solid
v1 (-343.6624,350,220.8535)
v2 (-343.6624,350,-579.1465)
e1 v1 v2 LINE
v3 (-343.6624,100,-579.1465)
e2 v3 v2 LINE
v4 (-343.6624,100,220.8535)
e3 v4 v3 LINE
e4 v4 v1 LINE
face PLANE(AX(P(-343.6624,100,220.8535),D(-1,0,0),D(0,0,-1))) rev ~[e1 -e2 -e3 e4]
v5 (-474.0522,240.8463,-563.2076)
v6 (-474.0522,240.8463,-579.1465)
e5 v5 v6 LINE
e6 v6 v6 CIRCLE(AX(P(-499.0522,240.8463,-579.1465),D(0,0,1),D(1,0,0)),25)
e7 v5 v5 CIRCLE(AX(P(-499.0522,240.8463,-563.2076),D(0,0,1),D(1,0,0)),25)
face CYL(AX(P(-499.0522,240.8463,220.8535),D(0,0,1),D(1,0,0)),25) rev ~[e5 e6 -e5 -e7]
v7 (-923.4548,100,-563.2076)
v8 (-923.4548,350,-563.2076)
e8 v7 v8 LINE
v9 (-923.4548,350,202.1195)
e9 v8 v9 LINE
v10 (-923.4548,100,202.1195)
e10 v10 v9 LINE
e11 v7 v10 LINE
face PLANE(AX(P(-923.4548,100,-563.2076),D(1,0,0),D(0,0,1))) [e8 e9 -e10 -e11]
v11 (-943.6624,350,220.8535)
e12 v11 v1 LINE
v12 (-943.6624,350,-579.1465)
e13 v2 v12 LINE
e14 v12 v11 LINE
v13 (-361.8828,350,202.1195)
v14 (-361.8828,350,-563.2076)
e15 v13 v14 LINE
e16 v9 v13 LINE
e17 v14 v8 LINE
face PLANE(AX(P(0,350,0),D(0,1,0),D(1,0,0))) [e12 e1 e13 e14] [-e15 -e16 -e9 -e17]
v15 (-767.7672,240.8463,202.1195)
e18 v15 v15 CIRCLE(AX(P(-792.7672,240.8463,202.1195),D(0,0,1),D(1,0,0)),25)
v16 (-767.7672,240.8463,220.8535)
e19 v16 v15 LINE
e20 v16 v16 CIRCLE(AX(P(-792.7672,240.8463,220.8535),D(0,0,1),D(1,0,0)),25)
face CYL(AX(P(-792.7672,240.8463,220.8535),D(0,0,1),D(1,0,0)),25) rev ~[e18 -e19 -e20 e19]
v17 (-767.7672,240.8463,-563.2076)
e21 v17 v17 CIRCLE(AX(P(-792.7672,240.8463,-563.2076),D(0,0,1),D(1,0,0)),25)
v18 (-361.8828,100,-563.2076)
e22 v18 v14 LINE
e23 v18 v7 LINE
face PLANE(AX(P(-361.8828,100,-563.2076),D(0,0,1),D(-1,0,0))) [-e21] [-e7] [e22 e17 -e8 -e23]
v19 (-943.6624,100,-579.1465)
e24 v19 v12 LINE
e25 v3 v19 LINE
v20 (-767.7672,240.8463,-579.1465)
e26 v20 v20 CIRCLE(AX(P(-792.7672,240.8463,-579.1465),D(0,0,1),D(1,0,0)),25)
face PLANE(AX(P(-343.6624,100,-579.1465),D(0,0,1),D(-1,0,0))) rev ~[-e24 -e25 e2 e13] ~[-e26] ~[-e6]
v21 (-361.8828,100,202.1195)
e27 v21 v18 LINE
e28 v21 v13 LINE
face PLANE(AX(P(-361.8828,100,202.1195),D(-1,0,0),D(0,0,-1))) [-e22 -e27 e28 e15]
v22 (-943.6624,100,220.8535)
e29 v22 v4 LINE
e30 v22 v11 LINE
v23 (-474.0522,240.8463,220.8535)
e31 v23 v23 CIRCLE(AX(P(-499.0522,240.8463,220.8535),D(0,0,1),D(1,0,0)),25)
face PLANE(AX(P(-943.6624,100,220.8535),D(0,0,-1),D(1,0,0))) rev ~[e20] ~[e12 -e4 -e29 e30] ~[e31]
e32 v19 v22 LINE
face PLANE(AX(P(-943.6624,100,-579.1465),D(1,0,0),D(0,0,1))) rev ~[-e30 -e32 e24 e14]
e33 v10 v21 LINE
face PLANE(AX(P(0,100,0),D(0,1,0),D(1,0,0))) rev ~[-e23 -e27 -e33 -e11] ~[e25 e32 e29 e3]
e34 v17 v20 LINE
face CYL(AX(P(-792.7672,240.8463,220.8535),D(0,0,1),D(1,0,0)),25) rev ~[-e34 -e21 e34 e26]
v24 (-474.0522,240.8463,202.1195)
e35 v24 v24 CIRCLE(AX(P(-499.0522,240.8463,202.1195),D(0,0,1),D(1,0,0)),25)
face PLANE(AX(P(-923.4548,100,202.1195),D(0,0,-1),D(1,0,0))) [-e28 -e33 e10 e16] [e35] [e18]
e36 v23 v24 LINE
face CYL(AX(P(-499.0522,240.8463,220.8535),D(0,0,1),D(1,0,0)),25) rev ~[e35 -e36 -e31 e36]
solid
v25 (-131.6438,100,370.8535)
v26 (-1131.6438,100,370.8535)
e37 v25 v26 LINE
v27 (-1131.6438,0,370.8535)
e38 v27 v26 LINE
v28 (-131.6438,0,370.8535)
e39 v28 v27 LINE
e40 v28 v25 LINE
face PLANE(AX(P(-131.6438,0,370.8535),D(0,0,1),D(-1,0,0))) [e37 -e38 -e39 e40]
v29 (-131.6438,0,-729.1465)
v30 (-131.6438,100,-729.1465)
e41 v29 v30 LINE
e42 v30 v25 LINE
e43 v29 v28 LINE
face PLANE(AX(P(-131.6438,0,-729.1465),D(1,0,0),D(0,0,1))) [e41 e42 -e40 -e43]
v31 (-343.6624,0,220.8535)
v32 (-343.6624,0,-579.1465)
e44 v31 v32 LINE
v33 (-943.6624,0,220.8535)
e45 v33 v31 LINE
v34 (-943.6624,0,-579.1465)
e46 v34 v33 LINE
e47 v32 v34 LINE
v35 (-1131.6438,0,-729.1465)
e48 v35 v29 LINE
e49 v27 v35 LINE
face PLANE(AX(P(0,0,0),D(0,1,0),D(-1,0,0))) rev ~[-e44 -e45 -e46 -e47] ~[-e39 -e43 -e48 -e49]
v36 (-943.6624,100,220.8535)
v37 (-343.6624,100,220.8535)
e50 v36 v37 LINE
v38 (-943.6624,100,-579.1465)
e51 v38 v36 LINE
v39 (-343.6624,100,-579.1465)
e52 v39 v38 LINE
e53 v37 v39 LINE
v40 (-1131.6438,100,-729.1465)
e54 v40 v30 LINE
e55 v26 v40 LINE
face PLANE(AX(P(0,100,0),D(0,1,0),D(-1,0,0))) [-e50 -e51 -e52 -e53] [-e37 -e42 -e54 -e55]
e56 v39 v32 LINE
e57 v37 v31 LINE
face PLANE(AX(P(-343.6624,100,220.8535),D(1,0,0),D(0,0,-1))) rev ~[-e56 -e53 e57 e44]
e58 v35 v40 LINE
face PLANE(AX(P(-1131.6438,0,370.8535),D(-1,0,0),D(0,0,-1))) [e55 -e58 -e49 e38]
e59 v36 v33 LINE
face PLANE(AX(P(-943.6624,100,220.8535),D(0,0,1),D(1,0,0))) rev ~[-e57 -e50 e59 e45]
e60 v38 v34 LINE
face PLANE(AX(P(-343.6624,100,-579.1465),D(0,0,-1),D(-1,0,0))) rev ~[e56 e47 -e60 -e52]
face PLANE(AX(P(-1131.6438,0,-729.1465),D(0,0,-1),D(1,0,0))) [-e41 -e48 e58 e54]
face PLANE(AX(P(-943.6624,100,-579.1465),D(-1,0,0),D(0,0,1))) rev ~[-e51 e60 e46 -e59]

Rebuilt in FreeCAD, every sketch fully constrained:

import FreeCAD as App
import Part
import Sketcher
from FreeCAD import Vector

doc = App.newDocument("Part")
body = doc.addObject("PartDesign::Body", "Body")
body.AllowCompound = True

sketch1 = body.newObject("Sketcher::SketchObject", "Sketch")
sketch1.AttachmentSupport = (doc.getObject("XZ_Plane"), [""])
sketch1.MapMode = "FlatFace"
sketch1.addGeometry(Part.LineSegment(Vector(-1132, 371, 0), Vector(-132, 371, 0)), False)
sketch1.addGeometry(Part.LineSegment(Vector(-132, 371, 0), Vector(-132, -729, 0)), False)
sketch1.addGeometry(Part.LineSegment(Vector(-132, -729, 0), Vector(-1132, -729, 0)), False)
sketch1.addGeometry(Part.LineSegment(Vector(-1132, -729, 0), Vector(-1132, 371, 0)), False)
sketch1.addConstraint(Sketcher.Constraint("Coincident", 0, 2, 1, 1))
sketch1.addConstraint(Sketcher.Constraint("Coincident", 1, 2, 2, 1))
sketch1.addConstraint(Sketcher.Constraint("Coincident", 2, 2, 3, 1))
sketch1.addConstraint(Sketcher.Constraint("Coincident", 3, 2, 0, 1))
sketch1.addConstraint(Sketcher.Constraint("Horizontal", 0))
sketch1.addConstraint(Sketcher.Constraint("Vertical", 1))
sketch1.addConstraint(Sketcher.Constraint("Horizontal", 2))
sketch1.addConstraint(Sketcher.Constraint("Vertical", 3))
sketch1.addConstraint(Sketcher.Constraint("DistanceX", 0, 1, 0, 2, 1000.0))
sketch1.addConstraint(Sketcher.Constraint("DistanceY", 1, 2, 1, 1, 1100.0))
sketch1.addConstraint(Sketcher.Constraint("DistanceX", 0, 2, -1, 1, 131.6438))
sketch1.addConstraint(Sketcher.Constraint("DistanceY", -1, 1, 0, 2, 370.8535))
pad1 = body.newObject("PartDesign::Pad", "Pad")
pad1.Profile = sketch1
pad1.Length = 100
pad1.Reversed = True

sketch2 = body.newObject("Sketcher::SketchObject", "Sketch001")
sketch2.AttachmentSupport = (doc.getObject("XZ_Plane"), [""])
sketch2.MapMode = "FlatFace"
sketch2.AttachmentOffset = App.Placement(Vector(0, 0, -100), App.Rotation())
sketch2.addGeometry(Part.LineSegment(Vector(-944, -579, 0), Vector(-944, 221, 0)), False)
sketch2.addGeometry(Part.LineSegment(Vector(-944, 221, 0), Vector(-344, 221, 0)), False)
sketch2.addGeometry(Part.LineSegment(Vector(-344, 221, 0), Vector(-344, -579, 0)), False)
sketch2.addGeometry(Part.LineSegment(Vector(-344, -579, 0), Vector(-944, -579, 0)), False)
sketch2.addConstraint(Sketcher.Constraint("Coincident", 0, 2, 1, 1))
sketch2.addConstraint(Sketcher.Constraint("Coincident", 1, 2, 2, 1))
sketch2.addConstraint(Sketcher.Constraint("Coincident", 2, 2, 3, 1))
sketch2.addConstraint(Sketcher.Constraint("Coincident", 3, 2, 0, 1))
sketch2.addConstraint(Sketcher.Constraint("Vertical", 0))
sketch2.addConstraint(Sketcher.Constraint("Horizontal", 1))
sketch2.addConstraint(Sketcher.Constraint("Vertical", 2))
sketch2.addConstraint(Sketcher.Constraint("Horizontal", 3))
sketch2.addConstraint(Sketcher.Constraint("DistanceX", 1, 1, 1, 2, 600.0))
sketch2.addConstraint(Sketcher.Constraint("DistanceY", 0, 1, 0, 2, 800.0))
sketch2.addConstraint(Sketcher.Constraint("DistanceX", 0, 2, -1, 1, 943.6624))
sketch2.addConstraint(Sketcher.Constraint("DistanceY", -1, 1, 0, 2, 220.8535))
pocket1 = body.newObject("PartDesign::Pocket", "Pocket")
pocket1.Profile = sketch2
pocket1.Length = 100
pocket1.Reversed = True

sketch3 = body.newObject("Sketcher::SketchObject", "Sketch002")
sketch3.AttachmentSupport = (doc.getObject("XZ_Plane"), [""])
sketch3.MapMode = "FlatFace"
sketch3.AttachmentOffset = App.Placement(Vector(0, 0, -100), App.Rotation())
sketch3.addGeometry(Part.LineSegment(Vector(-944, -579, 0), Vector(-944, 221, 0)), False)
sketch3.addGeometry(Part.LineSegment(Vector(-944, 221, 0), Vector(-344, 221, 0)), False)
sketch3.addGeometry(Part.LineSegment(Vector(-344, 221, 0), Vector(-344, -579, 0)), False)
sketch3.addGeometry(Part.LineSegment(Vector(-344, -579, 0), Vector(-944, -579, 0)), False)
sketch3.addGeometry(Part.LineSegment(Vector(-362, 202, 0), Vector(-923, 202, 0)), False)
sketch3.addGeometry(Part.LineSegment(Vector(-923, 202, 0), Vector(-923, -563, 0)), False)
sketch3.addGeometry(Part.LineSegment(Vector(-923, -563, 0), Vector(-362, -563, 0)), False)
sketch3.addGeometry(Part.LineSegment(Vector(-362, -563, 0), Vector(-362, 202, 0)), False)
sketch3.addConstraint(Sketcher.Constraint("Coincident", 0, 2, 1, 1))
sketch3.addConstraint(Sketcher.Constraint("Coincident", 1, 2, 2, 1))
sketch3.addConstraint(Sketcher.Constraint("Coincident", 2, 2, 3, 1))
sketch3.addConstraint(Sketcher.Constraint("Coincident", 3, 2, 0, 1))
sketch3.addConstraint(Sketcher.Constraint("Coincident", 4, 2, 5, 1))
sketch3.addConstraint(Sketcher.Constraint("Coincident", 5, 2, 6, 1))
sketch3.addConstraint(Sketcher.Constraint("Coincident", 6, 2, 7, 1))
sketch3.addConstraint(Sketcher.Constraint("Coincident", 7, 2, 4, 1))
sketch3.addConstraint(Sketcher.Constraint("Vertical", 0))
sketch3.addConstraint(Sketcher.Constraint("Horizontal", 1))
sketch3.addConstraint(Sketcher.Constraint("Vertical", 2))
sketch3.addConstraint(Sketcher.Constraint("Horizontal", 3))
sketch3.addConstraint(Sketcher.Constraint("Horizontal", 4))
sketch3.addConstraint(Sketcher.Constraint("Vertical", 5))
sketch3.addConstraint(Sketcher.Constraint("Horizontal", 6))
sketch3.addConstraint(Sketcher.Constraint("Vertical", 7))
sketch3.addConstraint(Sketcher.Constraint("DistanceX", 1, 1, 1, 2, 600.0))
sketch3.addConstraint(Sketcher.Constraint("DistanceY", 0, 1, 0, 2, 800.0))
sketch3.addConstraint(Sketcher.Constraint("DistanceX", 4, 2, 4, 1, 561.572))
sketch3.addConstraint(Sketcher.Constraint("DistanceY", 5, 2, 5, 1, 765.327))
sketch3.addConstraint(Sketcher.Constraint("DistanceY", 4, 2, 0, 2, 18.734))
sketch3.addConstraint(Sketcher.Constraint("DistanceX", 0, 2, -1, 1, 943.6624))
sketch3.addConstraint(Sketcher.Constraint("DistanceY", -1, 1, 0, 2, 220.8535))
sketch3.addConstraint(Sketcher.Constraint("DistanceX", 4, 2, -1, 1, 923.4548))
pad2 = body.newObject("PartDesign::Pad", "Pad001")
pad2.Profile = sketch3
pad2.Length = 250
pad2.Reversed = True

sketch4 = body.newObject("Sketcher::SketchObject", "Sketch003")
sketch4.AttachmentSupport = (doc.getObject("XY_Plane"), [""])
sketch4.MapMode = "FlatFace"
sketch4.AttachmentOffset = App.Placement(Vector(0, 0, 220.8535), App.Rotation())
sketch4.addGeometry(Part.Circle(Vector(-793, 241, 0), Vector(0, 0, 1), 25), False)
sketch4.addGeometry(Part.Circle(Vector(-499, 241, 0), Vector(0, 0, 1), 25), False)
sketch4.addConstraint(Sketcher.Constraint("Equal", 0, 1))
sketch4.addConstraint(Sketcher.Constraint("Horizontal", 0, 3, 1, 3))
sketch4.addConstraint(Sketcher.Constraint("Diameter", 0, 50.0))
sketch4.addConstraint(Sketcher.Constraint("DistanceX", 0, 3, 1, 3, 293.715))
sketch4.addConstraint(Sketcher.Constraint("DistanceX", 0, 3, -1, 1, 792.7672))
sketch4.addConstraint(Sketcher.Constraint("DistanceY", -1, 1, 0, 3, 240.8463))
pocket2 = body.newObject("PartDesign::Pocket", "Pocket001")
pocket2.Profile = sketch4
pocket2.Length = 2500

doc.recompute()
